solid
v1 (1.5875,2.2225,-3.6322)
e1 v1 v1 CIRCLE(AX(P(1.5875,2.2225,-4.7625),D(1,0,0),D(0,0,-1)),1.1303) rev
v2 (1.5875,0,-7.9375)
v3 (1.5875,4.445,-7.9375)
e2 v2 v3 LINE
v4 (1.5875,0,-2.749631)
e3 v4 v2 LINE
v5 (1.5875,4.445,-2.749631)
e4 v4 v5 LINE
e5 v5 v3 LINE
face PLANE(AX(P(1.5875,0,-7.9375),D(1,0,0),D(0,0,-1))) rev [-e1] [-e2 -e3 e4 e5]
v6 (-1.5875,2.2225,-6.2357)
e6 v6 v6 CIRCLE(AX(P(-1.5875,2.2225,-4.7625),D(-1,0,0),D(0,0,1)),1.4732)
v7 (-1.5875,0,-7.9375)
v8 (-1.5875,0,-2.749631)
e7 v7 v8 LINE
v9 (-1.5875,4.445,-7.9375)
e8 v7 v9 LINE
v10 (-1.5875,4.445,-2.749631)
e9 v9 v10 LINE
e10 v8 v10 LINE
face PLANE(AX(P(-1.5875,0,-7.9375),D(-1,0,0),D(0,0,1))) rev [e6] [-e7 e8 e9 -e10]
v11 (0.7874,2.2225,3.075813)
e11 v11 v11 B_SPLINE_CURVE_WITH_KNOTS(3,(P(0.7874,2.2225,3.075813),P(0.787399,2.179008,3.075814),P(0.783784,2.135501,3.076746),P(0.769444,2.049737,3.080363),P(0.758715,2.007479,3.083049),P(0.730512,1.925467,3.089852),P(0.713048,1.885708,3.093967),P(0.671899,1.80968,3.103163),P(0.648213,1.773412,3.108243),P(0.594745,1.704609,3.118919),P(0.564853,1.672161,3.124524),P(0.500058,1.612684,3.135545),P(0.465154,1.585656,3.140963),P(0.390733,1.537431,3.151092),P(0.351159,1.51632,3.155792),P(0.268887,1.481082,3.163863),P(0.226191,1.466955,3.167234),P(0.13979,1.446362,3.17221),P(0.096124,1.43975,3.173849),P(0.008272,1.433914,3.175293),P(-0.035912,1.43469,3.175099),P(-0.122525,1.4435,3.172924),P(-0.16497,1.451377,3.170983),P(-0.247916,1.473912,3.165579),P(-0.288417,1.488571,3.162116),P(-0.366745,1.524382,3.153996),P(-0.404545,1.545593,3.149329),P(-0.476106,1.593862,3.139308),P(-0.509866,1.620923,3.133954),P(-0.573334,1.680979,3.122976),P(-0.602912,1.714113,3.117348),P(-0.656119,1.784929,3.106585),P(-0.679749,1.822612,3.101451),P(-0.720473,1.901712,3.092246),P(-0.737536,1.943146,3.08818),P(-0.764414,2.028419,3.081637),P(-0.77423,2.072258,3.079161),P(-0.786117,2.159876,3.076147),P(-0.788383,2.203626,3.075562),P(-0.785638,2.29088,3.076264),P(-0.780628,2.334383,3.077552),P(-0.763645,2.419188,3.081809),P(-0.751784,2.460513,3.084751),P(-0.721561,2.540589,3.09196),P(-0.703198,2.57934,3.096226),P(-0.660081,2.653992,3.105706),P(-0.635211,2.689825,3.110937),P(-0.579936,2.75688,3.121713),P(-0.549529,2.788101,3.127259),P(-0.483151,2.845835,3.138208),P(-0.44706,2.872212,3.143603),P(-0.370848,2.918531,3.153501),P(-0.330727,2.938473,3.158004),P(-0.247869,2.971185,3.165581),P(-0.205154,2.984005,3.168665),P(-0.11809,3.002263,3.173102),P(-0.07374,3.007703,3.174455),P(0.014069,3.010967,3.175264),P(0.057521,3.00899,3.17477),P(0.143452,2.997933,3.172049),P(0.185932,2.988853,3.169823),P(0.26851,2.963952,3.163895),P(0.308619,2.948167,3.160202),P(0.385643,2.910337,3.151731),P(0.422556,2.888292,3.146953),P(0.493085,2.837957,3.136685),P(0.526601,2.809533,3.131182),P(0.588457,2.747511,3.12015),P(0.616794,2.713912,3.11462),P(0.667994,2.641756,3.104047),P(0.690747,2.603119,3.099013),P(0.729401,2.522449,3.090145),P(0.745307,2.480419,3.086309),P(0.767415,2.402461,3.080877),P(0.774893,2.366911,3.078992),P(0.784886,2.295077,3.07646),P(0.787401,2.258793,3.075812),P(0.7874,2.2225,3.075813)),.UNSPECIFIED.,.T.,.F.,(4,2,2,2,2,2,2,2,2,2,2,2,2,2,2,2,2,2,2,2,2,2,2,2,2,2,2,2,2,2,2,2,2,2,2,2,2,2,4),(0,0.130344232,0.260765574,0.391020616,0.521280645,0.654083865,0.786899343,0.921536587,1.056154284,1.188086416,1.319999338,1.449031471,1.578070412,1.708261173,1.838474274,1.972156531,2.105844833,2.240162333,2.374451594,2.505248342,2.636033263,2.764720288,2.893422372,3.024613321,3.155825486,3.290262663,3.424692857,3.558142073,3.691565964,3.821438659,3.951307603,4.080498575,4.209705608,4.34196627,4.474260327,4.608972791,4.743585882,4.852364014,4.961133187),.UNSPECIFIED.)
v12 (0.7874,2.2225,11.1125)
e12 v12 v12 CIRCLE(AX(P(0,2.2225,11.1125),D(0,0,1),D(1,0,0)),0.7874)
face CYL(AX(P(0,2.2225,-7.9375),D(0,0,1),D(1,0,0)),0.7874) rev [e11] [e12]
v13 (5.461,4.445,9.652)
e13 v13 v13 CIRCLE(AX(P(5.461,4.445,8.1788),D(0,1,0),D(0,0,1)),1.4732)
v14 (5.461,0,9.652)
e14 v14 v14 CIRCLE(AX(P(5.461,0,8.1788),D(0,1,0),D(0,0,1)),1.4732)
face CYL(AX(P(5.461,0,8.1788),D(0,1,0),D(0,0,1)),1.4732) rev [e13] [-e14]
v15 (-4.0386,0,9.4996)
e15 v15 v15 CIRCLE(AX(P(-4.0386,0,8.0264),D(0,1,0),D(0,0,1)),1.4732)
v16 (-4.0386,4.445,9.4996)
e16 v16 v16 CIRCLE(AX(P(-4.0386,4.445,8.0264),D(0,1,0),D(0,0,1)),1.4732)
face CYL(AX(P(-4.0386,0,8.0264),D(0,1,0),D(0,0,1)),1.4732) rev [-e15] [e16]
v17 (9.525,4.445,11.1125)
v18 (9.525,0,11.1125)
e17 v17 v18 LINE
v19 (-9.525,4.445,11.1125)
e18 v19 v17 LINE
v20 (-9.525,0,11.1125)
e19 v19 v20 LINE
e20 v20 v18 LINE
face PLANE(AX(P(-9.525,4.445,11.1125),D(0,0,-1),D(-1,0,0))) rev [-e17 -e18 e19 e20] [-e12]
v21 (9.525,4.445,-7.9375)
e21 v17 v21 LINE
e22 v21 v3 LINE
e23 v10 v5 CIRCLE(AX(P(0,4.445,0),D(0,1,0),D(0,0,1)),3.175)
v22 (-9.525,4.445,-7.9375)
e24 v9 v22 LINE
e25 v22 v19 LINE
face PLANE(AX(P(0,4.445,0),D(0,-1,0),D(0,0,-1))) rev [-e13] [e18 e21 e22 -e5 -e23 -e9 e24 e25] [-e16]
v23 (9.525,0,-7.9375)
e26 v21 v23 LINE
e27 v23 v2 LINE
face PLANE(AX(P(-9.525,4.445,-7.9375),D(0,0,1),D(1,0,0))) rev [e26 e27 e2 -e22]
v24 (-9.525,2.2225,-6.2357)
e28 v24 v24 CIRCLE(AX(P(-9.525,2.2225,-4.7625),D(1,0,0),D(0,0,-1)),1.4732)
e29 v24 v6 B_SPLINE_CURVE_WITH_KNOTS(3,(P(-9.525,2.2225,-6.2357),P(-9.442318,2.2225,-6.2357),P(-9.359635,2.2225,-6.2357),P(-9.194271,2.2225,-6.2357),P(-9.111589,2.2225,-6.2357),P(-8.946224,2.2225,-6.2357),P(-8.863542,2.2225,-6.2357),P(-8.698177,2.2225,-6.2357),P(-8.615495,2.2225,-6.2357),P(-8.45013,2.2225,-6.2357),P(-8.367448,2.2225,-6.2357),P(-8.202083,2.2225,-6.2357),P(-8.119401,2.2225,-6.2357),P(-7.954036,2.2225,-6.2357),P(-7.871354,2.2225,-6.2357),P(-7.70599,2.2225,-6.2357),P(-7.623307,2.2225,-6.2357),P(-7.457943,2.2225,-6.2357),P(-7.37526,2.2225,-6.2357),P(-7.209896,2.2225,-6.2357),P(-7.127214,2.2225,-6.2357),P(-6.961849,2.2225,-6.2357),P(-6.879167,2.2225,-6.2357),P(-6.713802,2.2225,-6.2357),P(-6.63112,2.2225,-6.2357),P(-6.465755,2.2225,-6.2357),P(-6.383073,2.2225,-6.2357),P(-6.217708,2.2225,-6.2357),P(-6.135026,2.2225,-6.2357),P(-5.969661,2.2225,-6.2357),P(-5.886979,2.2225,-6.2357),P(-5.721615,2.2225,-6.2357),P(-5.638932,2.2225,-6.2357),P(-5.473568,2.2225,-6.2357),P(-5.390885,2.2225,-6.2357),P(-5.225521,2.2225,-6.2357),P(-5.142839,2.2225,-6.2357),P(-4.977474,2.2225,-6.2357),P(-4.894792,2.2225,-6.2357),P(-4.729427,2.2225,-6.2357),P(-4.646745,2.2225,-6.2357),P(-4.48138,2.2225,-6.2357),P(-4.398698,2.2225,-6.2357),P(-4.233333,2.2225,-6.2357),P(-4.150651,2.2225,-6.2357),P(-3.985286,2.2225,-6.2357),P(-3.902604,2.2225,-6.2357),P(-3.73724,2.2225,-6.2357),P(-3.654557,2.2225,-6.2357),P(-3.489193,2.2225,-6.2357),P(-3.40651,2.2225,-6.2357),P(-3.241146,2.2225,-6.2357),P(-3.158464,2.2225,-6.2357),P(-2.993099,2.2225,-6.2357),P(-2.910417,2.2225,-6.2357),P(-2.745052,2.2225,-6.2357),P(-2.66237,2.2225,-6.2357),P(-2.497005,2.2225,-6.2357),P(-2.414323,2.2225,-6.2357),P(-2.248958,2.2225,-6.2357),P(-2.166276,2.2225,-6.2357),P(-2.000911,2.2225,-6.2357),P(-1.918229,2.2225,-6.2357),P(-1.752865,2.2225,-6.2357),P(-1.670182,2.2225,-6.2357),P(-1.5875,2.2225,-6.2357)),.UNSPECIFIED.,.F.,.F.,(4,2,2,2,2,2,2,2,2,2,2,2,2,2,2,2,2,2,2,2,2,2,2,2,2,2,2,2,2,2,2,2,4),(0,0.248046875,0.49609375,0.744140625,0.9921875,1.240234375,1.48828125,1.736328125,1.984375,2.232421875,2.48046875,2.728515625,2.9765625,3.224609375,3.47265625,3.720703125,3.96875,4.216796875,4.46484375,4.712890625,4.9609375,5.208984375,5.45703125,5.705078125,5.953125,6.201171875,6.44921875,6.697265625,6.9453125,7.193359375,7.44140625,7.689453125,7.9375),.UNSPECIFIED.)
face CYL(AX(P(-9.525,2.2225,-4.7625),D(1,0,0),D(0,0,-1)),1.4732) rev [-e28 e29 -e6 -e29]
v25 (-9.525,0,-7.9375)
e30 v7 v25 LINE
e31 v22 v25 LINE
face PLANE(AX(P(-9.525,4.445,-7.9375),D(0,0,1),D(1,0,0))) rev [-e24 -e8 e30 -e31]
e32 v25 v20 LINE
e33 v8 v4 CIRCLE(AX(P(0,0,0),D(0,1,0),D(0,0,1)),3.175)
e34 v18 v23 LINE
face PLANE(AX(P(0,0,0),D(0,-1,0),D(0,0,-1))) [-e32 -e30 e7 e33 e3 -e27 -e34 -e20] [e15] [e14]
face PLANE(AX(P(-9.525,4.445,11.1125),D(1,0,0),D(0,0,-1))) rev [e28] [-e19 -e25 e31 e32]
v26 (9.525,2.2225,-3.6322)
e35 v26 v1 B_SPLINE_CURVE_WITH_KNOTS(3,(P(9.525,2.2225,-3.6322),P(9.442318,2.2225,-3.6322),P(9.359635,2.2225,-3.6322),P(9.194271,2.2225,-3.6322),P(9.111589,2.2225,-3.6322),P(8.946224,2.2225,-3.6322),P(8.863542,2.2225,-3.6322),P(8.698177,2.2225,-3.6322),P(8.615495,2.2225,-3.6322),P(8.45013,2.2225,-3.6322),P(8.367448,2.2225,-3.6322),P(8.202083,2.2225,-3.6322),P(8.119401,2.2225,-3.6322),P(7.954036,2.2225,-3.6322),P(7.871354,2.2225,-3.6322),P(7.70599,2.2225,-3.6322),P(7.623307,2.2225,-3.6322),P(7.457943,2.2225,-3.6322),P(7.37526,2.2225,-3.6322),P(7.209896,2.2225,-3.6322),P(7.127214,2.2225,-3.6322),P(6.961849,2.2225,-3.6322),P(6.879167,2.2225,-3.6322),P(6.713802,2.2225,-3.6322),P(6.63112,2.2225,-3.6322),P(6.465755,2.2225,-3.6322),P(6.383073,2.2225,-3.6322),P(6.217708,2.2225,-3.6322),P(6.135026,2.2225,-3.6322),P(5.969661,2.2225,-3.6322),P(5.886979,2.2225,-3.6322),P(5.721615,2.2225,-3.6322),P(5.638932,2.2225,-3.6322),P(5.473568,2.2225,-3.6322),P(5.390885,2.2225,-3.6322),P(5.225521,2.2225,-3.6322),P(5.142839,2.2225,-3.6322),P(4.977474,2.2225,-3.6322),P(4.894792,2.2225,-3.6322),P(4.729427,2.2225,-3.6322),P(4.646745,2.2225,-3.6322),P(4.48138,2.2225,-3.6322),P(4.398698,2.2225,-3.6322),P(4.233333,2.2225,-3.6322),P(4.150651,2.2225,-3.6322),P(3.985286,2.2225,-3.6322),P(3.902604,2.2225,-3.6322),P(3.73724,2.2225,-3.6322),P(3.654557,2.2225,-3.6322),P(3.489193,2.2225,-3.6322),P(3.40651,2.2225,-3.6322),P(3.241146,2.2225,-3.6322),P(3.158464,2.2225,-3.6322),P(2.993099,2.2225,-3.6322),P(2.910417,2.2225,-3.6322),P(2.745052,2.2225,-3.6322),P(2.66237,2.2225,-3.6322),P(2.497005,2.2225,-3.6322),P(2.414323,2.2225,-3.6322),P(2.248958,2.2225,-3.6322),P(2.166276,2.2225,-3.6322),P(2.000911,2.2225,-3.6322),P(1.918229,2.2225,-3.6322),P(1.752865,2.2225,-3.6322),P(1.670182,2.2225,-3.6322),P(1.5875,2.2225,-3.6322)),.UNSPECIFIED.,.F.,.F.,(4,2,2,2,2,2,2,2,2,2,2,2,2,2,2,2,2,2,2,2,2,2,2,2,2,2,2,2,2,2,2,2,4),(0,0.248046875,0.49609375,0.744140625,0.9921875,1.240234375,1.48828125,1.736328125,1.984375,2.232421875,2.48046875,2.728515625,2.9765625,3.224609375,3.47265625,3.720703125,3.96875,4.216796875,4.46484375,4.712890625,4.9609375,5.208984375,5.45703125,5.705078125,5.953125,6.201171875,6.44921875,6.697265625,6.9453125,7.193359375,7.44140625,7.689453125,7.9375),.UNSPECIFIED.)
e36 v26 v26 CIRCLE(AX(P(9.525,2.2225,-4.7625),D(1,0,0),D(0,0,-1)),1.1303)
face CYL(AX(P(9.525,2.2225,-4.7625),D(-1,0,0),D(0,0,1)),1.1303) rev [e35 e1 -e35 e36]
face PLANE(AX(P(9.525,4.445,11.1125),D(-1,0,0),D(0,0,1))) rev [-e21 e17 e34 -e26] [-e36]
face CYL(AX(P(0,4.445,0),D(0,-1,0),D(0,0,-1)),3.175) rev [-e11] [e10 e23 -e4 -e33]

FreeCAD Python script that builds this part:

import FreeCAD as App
import Part
import Sketcher
from FreeCAD import Vector
Q = App.Units.Quantity

doc = App.newDocument("Part")
body = doc.addObject("PartDesign::Body", "Body")

# Sketch on XZ plane
sketch1 = body.newObject("Sketcher::SketchObject", "Sketch")
sketch1.AttachmentSupport = (doc.getObject("XZ_Plane"), [""])
sketch1.MapMode = "FlatFace"
sketch1.addGeometry([
    Part.LineSegment(Vector(-9.5, -7.9, 0), Vector(-9.5, 11.1, 0)),  # 0
    Part.LineSegment(Vector(-9.5, 11.1, 0), Vector(9.5, 11.1, 0)),  # 1
    Part.LineSegment(Vector(9.5, 11.1, 0), Vector(9.5, -7.9, 0)),  # 2
    Part.LineSegment(Vector(9.5, -7.9, 0), Vector(-9.5, -7.9, 0)),  # 3
    Part.Circle(Vector(0, 0, 0), Vector(0, 0, 1), 3.2),  # 4
], False)
sketch1.addConstraint([
    Sketcher.Constraint("Coincident", 0, 2, 1, 1),
    Sketcher.Constraint("Coincident", 1, 2, 2, 1),
    Sketcher.Constraint("Coincident", 2, 2, 3, 1),
    Sketcher.Constraint("Coincident", 3, 2, 0, 1),
    Sketcher.Constraint("Vertical", 0),
    Sketcher.Constraint("Horizontal", 1),
    Sketcher.Constraint("Vertical", 2),
    Sketcher.Constraint("Horizontal", 3),
    Sketcher.Constraint("Coincident", 4, 3, -1, 1),
    Sketcher.Constraint("Equal", 3, 0),
    Sketcher.Constraint("Diameter", 4, Q("0.25 in")),
    Sketcher.Constraint("DistanceX", 1, 1, 1, 2, Q("0.75 in")),
    Sketcher.Constraint("DistanceX", 0, 2, -1, 1, Q("0.375 in")),
    Sketcher.Constraint("DistanceY", -1, 1, 0, 2, Q("0.4375 in")),
])
pad1 = body.newObject("PartDesign::Pad", "Pad")
pad1.Profile = sketch1
pad1.Length = Q("0.175 in")
pad1.Reversed = True

# Sketch on XZ plane
sketch2 = body.newObject("Sketcher::SketchObject", "Sketch001")
sketch2.AttachmentSupport = (doc.getObject("XZ_Plane"), [""])
sketch2.MapMode = "FlatFace"
sketch2.AttachmentOffset = App.Placement(Vector(0, 0, -0.175 * 25.4), App.Rotation())
sketch2.addGeometry([
    Part.Circle(Vector(5.5, 8.2, 0), Vector(0, 0, 1), 1.5),  # 0
    Part.Circle(Vector(-4, 8, 0), Vector(0, 0, 1), 1.5),  # 1
    Part.LineSegment(Vector(-1.6, -7.9, 0), Vector(-1.6, -2.7, 0)),  # 2
    Part.LineSegment(Vector(-1.6, -2.7, 0), Vector(1.6, -2.7, 0)),  # 3
    Part.LineSegment(Vector(1.6, -2.7, 0), Vector(1.6, -7.9, 0)),  # 4
    Part.LineSegment(Vector(1.6, -7.9, 0), Vector(-1.6, -7.9, 0)),  # 5
], False)
sketch2.addConstraint([
    Sketcher.Constraint("Coincident", 2, 2, 3, 1),
    Sketcher.Constraint("Coincident", 3, 2, 4, 1),
    Sketcher.Constraint("Coincident", 4, 2, 5, 1),
    Sketcher.Constraint("Coincident", 5, 2, 2, 1),
    Sketcher.Constraint("Vertical", 2),
    Sketcher.Constraint("Horizontal", 3),
    Sketcher.Constraint("Vertical", 4),
    Sketcher.Constraint("Horizontal", 5),
    Sketcher.Constraint("Equal", 0, 1),
    Sketcher.Constraint("Diameter", 0, Q("0.116 in")),
    Sketcher.Constraint("DistanceX", 3, 1, 3, 2, Q("0.125 in")),
    Sketcher.Constraint("DistanceX", -1, 1, 0, 3, Q("0.215 in")),
    Sketcher.Constraint("DistanceY", -1, 1, 0, 3, Q("0.322 in")),
    Sketcher.Constraint("DistanceX", 1, 3, -1, 1, Q("0.159 in")),
    Sketcher.Constraint("DistanceY", -1, 1, 1, 3, Q("0.316 in")),
    Sketcher.Constraint("DistanceX", 2, 2, -1, 1, Q("0.0625 in")),
    Sketcher.Constraint("DistanceY", 4, 2, -1, 1, Q("0.3125 in")),
    Sketcher.Constraint("DistanceY", 2, 1, 2, 2, 5.187869),
])
pocket1 = body.newObject("PartDesign::Pocket", "Pocket")
pocket1.Profile = sketch2
pocket1.Type = "ThroughAll"
pocket1.Reversed = True

# Sketch on XY plane
sketch3 = body.newObject("Sketcher::SketchObject", "Sketch002")
sketch3.AttachmentSupport = (doc.getObject("XY_Plane"), [""])
sketch3.MapMode = "FlatFace"
sketch3.AttachmentOffset = App.Placement(Vector(0, 0, 0.4375 * 25.4), App.Rotation())
sketch3.addGeometry(Part.Circle(Vector(0, 2.2, 0), Vector(0, 0, 1), 0.8), False)
sketch3.addConstraint([
    Sketcher.Constraint("PointOnObject", 0, 3, -2),
    Sketcher.Constraint("Diameter", 0, Q("0.062 in")),
    Sketcher.Constraint("DistanceY", -1, 1, 0, 3, Q("0.0875 in")),
])
pocket2 = body.newObject("PartDesign::Pocket", "Pocket001")
pocket2.Profile = sketch3
pocket2.Type = "ThroughAll"

# Sketch on YZ plane
sketch4 = body.newObject("Sketcher::SketchObject", "Sketch003")
sketch4.AttachmentSupport = (doc.getObject("YZ_Plane"), [""])
sketch4.MapMode = "FlatFace"
sketch4.addGeometry(Part.Circle(Vector(2.2, -4.8, 0), Vector(0, 0, 1), 1.1), False)
sketch4.addConstraint([
    Sketcher.Constraint("Diameter", 0, Q("0.089 in")),
    Sketcher.Constraint("DistanceY", 0, 3, -1, 1, Q("0.1875 in")),
    Sketcher.Constraint("DistanceX", -1, 1, 0, 3, Q("0.0875 in")),
])
pocket3 = body.newObject("PartDesign::Pocket", "Pocket002")
pocket3.Profile = sketch4
pocket3.Type = "ThroughAll"
pocket3.Reversed = True

# Sketch on YZ plane
sketch5 = body.newObject("Sketcher::SketchObject", "Sketch004")
sketch5.AttachmentSupport = (doc.getObject("YZ_Plane"), [""])
sketch5.MapMode = "FlatFace"
sketch5.addGeometry(Part.Circle(Vector(2.2, -4.8, 0), Vector(0, 0, 1), 1.5), False)
sketch5.addConstraint([
    Sketcher.Constraint("Diameter", 0, Q("0.116 in")),
    Sketcher.Constraint("DistanceY", 0, 3, -1, 1, Q("0.1875 in")),
    Sketcher.Constraint("DistanceX", -1, 1, 0, 3, Q("0.0875 in")),
])
pocket4 = body.newObject("PartDesign::Pocket", "Pocket003")
pocket4.Profile = sketch5
pocket4.Type = "ThroughAll"

doc.recompute()
